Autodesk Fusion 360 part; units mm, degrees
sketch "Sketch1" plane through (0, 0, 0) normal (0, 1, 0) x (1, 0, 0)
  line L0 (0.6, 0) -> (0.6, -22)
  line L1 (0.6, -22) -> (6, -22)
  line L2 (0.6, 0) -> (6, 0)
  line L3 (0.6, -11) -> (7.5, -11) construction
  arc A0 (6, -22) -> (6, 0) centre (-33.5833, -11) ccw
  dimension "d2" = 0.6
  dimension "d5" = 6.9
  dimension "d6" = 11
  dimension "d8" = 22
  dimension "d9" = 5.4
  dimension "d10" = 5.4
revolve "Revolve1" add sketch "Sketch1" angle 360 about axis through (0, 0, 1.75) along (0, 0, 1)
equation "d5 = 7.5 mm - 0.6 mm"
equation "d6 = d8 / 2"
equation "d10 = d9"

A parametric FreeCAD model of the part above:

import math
import FreeCAD as App
import Part
import Sketcher

doc = App.newDocument("Part")
params = doc.addObject("Spreadsheet::Sheet", "Params")
for row, (alias, value) in enumerate([
    ("sketch1_height", "22 mm"),
    ("sketch1_width", "5.4 mm"),
    ("revolution_angle", "360 deg"),
], start=1):
    params.set(f"A{row}", alias)
    params.set(f"B{row}", "=" + value)
    params.setAlias(f"B{row}", alias)

body = doc.addObject("PartDesign::Body", "Body")

# Sketch on XZ plane
sketch1 = body.newObject("Sketcher::SketchObject", "Sketch")
sketch1.AttachmentSupport = (doc.getObject("XZ_Plane"), [""])
sketch1.MapMode = "FlatFace"
sketch1.addGeometry([
    Part.LineSegment(App.Vector(6, 0, 0), App.Vector(1, 0, 0)),
    Part.LineSegment(App.Vector(1, 0, 0), App.Vector(1, 22, 0)),
    Part.LineSegment(App.Vector(1, 22, 0), App.Vector(6, 22, 0)),
    Part.ArcOfCircle(Part.Circle(App.Vector(-34, 11, 0), App.Vector(0, 0, 1), 41), math.radians(-16), math.radians(16)),
], False)
sketch1.addConstraint([
    Sketcher.Constraint("Coincident", 0, 2, 1, 1),
    Sketcher.Constraint("Coincident", 1, 2, 2, 1),
    Sketcher.Constraint("Coincident", 2, 2, 3, 2),
    Sketcher.Constraint("Coincident", 3, 1, 0, 1),
    Sketcher.Constraint("Horizontal", 0),
    Sketcher.Constraint("Vertical", 1),
    Sketcher.Constraint("Horizontal", 2),
    Sketcher.Constraint("PointOnObject", 0, 2, -1),
    Sketcher.Constraint("Vertical", 2, 2, 3, 1),
    Sketcher.Constraint("DistanceY", 1, 1, 1, 2, 22.0),
    Sketcher.Constraint("DistanceX", 0, 2, 0, 1, 5.4),
    Sketcher.Constraint("DistanceX", -1, 1, 0, 2, 0.6),
    Sketcher.Constraint("Radius", 3, 41.0833),
])
sketch1.setExpression("Constraints[9]", "Params.sketch1_height")
sketch1.setExpression("Constraints[10]", "Params.sketch1_width")
revolution = body.newObject("PartDesign::Revolution", "Revolution")
revolution.Profile = sketch1
revolution.ReferenceAxis = (sketch1, ["V_Axis"])
revolution.setExpression("Angle", "Params.revolution_angle")

doc.recompute()
